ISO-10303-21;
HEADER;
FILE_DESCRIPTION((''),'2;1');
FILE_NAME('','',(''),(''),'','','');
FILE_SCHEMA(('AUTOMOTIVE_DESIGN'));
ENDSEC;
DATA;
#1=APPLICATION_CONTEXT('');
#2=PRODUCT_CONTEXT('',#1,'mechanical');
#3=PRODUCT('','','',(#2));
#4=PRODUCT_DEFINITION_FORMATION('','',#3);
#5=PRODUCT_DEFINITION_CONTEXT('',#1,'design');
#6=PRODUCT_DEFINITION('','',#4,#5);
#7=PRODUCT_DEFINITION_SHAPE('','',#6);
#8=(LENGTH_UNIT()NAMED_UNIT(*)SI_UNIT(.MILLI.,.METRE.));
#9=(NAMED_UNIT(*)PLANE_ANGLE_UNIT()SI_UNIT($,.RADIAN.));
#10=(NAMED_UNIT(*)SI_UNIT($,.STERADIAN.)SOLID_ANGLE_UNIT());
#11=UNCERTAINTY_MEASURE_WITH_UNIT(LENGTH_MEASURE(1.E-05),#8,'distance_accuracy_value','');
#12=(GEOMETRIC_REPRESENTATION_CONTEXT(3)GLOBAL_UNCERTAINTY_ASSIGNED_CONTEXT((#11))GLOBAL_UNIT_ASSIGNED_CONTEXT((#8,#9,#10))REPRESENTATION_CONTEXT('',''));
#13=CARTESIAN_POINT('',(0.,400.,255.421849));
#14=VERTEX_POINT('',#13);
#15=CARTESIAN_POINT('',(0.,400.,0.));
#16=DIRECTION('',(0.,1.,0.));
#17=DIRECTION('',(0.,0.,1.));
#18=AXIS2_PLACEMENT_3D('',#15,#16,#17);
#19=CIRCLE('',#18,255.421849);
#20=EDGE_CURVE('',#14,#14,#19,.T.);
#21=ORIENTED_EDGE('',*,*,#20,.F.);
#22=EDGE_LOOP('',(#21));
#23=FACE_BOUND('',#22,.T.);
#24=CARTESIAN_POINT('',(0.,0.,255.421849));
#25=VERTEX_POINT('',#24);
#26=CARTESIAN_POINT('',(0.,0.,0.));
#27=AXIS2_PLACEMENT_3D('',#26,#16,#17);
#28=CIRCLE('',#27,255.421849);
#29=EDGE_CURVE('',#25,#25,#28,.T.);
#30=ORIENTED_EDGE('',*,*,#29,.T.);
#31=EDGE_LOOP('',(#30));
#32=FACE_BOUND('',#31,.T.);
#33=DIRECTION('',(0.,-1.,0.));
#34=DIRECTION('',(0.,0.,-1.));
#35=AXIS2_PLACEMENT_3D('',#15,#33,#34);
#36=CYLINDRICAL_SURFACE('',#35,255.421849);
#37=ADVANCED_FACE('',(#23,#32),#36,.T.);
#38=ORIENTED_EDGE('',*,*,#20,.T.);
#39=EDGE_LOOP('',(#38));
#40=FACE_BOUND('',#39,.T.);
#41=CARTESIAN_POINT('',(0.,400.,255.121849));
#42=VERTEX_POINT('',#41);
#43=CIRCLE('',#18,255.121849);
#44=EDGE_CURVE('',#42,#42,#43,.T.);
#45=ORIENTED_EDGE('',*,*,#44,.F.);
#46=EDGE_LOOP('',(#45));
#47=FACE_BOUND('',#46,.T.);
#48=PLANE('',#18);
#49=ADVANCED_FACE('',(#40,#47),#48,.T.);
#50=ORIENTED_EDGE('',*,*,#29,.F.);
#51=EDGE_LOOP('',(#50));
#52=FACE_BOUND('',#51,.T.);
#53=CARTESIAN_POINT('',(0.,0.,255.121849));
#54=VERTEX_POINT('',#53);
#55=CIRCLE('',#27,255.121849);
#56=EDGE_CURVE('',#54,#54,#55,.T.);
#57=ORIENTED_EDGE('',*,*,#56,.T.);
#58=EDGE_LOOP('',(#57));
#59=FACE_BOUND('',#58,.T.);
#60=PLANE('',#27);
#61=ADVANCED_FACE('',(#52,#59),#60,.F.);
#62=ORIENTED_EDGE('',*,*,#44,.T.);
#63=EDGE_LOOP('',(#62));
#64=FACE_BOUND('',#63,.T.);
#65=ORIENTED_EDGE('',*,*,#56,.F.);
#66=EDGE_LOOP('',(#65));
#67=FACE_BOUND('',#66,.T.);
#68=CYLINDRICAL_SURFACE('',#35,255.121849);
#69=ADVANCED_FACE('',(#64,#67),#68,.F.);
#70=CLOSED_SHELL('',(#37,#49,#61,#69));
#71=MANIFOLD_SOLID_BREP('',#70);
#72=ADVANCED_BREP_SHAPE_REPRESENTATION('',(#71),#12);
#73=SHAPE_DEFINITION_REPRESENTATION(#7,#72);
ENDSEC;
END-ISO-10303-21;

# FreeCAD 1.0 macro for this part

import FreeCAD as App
import Part
import Sketcher
from FreeCAD import Vector
Q = App.Units.Quantity

doc = App.newDocument("Part")
body = doc.addObject("PartDesign::Body", "Body")

# Sketch on XZ plane
sketch1 = body.newObject("Sketcher::SketchObject", "Sketch")
sketch1.AttachmentSupport = (doc.getObject("XZ_Plane"), [""])
sketch1.MapMode = "FlatFace"
sketch1.addGeometry(Part.Circle(Vector(0, 0, 0), Vector(0, 0, 1), 255), False)
sketch1.addGeometry(Part.Circle(Vector(0, 0, 0), Vector(0, 0, 1), 255), False)
sketch1.addConstraint(Sketcher.Constraint("Coincident", 0, 3, -1, 1))
sketch1.addConstraint(Sketcher.Constraint("Coincident", 1, 3, -1, 1))
sketch1.addConstraint(Sketcher.Constraint("Diameter", 0, Q("510.843697 mm")))
sketch1.addConstraint(Sketcher.Constraint("Diameter", 1, Q("510.243697 mm")))
pad1 = body.newObject("PartDesign::Pad", "Pad")
pad1.Profile = sketch1
pad1.Length = 400
pad1.Reversed = True

doc.recompute()
